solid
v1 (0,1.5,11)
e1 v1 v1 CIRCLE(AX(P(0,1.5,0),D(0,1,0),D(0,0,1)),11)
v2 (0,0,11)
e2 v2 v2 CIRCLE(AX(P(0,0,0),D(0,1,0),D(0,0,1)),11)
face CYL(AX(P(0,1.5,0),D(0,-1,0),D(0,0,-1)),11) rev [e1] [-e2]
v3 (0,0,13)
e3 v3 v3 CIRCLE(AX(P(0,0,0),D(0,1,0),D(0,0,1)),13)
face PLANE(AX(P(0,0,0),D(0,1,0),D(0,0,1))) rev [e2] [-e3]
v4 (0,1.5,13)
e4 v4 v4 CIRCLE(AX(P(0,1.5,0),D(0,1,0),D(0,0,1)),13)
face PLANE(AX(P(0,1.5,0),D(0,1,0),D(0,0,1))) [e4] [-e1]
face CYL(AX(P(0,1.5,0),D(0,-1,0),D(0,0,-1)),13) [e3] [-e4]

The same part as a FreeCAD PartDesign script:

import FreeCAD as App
import Part
import Sketcher

doc = App.newDocument("Part")
body = doc.addObject("PartDesign::Body", "Body")

# Sketch on XZ plane
sketch1 = doc.addObject("Sketcher::SketchObject", "Sketch")
body.addObject(sketch1)
sketch1.AttachmentSupport = (doc.XZ_Plane, [""])
sketch1.MapMode = "FlatFace"
sketch1.addGeometry([
    Part.Circle(App.Vector(0, 0, 0), App.Vector(0, 0, 1), 13),
    Part.Circle(App.Vector(0, 0, 0), App.Vector(0, 0, 1), 11),
], False)
sketch1.addConstraint([
    Sketcher.Constraint("Coincident", 0, 3, -1, 1),
    Sketcher.Constraint("Coincident", 1, 3, -1, 1),
    Sketcher.Constraint("Diameter", 0, 26.0),
    Sketcher.Constraint("Diameter", 1, 22.0),
])
pad1 = doc.addObject("PartDesign::Pad", "Pad")
body.addObject(pad1)
pad1.Profile = sketch1
pad1.Length = 1.5
pad1.Reversed = True

doc.recompute()
